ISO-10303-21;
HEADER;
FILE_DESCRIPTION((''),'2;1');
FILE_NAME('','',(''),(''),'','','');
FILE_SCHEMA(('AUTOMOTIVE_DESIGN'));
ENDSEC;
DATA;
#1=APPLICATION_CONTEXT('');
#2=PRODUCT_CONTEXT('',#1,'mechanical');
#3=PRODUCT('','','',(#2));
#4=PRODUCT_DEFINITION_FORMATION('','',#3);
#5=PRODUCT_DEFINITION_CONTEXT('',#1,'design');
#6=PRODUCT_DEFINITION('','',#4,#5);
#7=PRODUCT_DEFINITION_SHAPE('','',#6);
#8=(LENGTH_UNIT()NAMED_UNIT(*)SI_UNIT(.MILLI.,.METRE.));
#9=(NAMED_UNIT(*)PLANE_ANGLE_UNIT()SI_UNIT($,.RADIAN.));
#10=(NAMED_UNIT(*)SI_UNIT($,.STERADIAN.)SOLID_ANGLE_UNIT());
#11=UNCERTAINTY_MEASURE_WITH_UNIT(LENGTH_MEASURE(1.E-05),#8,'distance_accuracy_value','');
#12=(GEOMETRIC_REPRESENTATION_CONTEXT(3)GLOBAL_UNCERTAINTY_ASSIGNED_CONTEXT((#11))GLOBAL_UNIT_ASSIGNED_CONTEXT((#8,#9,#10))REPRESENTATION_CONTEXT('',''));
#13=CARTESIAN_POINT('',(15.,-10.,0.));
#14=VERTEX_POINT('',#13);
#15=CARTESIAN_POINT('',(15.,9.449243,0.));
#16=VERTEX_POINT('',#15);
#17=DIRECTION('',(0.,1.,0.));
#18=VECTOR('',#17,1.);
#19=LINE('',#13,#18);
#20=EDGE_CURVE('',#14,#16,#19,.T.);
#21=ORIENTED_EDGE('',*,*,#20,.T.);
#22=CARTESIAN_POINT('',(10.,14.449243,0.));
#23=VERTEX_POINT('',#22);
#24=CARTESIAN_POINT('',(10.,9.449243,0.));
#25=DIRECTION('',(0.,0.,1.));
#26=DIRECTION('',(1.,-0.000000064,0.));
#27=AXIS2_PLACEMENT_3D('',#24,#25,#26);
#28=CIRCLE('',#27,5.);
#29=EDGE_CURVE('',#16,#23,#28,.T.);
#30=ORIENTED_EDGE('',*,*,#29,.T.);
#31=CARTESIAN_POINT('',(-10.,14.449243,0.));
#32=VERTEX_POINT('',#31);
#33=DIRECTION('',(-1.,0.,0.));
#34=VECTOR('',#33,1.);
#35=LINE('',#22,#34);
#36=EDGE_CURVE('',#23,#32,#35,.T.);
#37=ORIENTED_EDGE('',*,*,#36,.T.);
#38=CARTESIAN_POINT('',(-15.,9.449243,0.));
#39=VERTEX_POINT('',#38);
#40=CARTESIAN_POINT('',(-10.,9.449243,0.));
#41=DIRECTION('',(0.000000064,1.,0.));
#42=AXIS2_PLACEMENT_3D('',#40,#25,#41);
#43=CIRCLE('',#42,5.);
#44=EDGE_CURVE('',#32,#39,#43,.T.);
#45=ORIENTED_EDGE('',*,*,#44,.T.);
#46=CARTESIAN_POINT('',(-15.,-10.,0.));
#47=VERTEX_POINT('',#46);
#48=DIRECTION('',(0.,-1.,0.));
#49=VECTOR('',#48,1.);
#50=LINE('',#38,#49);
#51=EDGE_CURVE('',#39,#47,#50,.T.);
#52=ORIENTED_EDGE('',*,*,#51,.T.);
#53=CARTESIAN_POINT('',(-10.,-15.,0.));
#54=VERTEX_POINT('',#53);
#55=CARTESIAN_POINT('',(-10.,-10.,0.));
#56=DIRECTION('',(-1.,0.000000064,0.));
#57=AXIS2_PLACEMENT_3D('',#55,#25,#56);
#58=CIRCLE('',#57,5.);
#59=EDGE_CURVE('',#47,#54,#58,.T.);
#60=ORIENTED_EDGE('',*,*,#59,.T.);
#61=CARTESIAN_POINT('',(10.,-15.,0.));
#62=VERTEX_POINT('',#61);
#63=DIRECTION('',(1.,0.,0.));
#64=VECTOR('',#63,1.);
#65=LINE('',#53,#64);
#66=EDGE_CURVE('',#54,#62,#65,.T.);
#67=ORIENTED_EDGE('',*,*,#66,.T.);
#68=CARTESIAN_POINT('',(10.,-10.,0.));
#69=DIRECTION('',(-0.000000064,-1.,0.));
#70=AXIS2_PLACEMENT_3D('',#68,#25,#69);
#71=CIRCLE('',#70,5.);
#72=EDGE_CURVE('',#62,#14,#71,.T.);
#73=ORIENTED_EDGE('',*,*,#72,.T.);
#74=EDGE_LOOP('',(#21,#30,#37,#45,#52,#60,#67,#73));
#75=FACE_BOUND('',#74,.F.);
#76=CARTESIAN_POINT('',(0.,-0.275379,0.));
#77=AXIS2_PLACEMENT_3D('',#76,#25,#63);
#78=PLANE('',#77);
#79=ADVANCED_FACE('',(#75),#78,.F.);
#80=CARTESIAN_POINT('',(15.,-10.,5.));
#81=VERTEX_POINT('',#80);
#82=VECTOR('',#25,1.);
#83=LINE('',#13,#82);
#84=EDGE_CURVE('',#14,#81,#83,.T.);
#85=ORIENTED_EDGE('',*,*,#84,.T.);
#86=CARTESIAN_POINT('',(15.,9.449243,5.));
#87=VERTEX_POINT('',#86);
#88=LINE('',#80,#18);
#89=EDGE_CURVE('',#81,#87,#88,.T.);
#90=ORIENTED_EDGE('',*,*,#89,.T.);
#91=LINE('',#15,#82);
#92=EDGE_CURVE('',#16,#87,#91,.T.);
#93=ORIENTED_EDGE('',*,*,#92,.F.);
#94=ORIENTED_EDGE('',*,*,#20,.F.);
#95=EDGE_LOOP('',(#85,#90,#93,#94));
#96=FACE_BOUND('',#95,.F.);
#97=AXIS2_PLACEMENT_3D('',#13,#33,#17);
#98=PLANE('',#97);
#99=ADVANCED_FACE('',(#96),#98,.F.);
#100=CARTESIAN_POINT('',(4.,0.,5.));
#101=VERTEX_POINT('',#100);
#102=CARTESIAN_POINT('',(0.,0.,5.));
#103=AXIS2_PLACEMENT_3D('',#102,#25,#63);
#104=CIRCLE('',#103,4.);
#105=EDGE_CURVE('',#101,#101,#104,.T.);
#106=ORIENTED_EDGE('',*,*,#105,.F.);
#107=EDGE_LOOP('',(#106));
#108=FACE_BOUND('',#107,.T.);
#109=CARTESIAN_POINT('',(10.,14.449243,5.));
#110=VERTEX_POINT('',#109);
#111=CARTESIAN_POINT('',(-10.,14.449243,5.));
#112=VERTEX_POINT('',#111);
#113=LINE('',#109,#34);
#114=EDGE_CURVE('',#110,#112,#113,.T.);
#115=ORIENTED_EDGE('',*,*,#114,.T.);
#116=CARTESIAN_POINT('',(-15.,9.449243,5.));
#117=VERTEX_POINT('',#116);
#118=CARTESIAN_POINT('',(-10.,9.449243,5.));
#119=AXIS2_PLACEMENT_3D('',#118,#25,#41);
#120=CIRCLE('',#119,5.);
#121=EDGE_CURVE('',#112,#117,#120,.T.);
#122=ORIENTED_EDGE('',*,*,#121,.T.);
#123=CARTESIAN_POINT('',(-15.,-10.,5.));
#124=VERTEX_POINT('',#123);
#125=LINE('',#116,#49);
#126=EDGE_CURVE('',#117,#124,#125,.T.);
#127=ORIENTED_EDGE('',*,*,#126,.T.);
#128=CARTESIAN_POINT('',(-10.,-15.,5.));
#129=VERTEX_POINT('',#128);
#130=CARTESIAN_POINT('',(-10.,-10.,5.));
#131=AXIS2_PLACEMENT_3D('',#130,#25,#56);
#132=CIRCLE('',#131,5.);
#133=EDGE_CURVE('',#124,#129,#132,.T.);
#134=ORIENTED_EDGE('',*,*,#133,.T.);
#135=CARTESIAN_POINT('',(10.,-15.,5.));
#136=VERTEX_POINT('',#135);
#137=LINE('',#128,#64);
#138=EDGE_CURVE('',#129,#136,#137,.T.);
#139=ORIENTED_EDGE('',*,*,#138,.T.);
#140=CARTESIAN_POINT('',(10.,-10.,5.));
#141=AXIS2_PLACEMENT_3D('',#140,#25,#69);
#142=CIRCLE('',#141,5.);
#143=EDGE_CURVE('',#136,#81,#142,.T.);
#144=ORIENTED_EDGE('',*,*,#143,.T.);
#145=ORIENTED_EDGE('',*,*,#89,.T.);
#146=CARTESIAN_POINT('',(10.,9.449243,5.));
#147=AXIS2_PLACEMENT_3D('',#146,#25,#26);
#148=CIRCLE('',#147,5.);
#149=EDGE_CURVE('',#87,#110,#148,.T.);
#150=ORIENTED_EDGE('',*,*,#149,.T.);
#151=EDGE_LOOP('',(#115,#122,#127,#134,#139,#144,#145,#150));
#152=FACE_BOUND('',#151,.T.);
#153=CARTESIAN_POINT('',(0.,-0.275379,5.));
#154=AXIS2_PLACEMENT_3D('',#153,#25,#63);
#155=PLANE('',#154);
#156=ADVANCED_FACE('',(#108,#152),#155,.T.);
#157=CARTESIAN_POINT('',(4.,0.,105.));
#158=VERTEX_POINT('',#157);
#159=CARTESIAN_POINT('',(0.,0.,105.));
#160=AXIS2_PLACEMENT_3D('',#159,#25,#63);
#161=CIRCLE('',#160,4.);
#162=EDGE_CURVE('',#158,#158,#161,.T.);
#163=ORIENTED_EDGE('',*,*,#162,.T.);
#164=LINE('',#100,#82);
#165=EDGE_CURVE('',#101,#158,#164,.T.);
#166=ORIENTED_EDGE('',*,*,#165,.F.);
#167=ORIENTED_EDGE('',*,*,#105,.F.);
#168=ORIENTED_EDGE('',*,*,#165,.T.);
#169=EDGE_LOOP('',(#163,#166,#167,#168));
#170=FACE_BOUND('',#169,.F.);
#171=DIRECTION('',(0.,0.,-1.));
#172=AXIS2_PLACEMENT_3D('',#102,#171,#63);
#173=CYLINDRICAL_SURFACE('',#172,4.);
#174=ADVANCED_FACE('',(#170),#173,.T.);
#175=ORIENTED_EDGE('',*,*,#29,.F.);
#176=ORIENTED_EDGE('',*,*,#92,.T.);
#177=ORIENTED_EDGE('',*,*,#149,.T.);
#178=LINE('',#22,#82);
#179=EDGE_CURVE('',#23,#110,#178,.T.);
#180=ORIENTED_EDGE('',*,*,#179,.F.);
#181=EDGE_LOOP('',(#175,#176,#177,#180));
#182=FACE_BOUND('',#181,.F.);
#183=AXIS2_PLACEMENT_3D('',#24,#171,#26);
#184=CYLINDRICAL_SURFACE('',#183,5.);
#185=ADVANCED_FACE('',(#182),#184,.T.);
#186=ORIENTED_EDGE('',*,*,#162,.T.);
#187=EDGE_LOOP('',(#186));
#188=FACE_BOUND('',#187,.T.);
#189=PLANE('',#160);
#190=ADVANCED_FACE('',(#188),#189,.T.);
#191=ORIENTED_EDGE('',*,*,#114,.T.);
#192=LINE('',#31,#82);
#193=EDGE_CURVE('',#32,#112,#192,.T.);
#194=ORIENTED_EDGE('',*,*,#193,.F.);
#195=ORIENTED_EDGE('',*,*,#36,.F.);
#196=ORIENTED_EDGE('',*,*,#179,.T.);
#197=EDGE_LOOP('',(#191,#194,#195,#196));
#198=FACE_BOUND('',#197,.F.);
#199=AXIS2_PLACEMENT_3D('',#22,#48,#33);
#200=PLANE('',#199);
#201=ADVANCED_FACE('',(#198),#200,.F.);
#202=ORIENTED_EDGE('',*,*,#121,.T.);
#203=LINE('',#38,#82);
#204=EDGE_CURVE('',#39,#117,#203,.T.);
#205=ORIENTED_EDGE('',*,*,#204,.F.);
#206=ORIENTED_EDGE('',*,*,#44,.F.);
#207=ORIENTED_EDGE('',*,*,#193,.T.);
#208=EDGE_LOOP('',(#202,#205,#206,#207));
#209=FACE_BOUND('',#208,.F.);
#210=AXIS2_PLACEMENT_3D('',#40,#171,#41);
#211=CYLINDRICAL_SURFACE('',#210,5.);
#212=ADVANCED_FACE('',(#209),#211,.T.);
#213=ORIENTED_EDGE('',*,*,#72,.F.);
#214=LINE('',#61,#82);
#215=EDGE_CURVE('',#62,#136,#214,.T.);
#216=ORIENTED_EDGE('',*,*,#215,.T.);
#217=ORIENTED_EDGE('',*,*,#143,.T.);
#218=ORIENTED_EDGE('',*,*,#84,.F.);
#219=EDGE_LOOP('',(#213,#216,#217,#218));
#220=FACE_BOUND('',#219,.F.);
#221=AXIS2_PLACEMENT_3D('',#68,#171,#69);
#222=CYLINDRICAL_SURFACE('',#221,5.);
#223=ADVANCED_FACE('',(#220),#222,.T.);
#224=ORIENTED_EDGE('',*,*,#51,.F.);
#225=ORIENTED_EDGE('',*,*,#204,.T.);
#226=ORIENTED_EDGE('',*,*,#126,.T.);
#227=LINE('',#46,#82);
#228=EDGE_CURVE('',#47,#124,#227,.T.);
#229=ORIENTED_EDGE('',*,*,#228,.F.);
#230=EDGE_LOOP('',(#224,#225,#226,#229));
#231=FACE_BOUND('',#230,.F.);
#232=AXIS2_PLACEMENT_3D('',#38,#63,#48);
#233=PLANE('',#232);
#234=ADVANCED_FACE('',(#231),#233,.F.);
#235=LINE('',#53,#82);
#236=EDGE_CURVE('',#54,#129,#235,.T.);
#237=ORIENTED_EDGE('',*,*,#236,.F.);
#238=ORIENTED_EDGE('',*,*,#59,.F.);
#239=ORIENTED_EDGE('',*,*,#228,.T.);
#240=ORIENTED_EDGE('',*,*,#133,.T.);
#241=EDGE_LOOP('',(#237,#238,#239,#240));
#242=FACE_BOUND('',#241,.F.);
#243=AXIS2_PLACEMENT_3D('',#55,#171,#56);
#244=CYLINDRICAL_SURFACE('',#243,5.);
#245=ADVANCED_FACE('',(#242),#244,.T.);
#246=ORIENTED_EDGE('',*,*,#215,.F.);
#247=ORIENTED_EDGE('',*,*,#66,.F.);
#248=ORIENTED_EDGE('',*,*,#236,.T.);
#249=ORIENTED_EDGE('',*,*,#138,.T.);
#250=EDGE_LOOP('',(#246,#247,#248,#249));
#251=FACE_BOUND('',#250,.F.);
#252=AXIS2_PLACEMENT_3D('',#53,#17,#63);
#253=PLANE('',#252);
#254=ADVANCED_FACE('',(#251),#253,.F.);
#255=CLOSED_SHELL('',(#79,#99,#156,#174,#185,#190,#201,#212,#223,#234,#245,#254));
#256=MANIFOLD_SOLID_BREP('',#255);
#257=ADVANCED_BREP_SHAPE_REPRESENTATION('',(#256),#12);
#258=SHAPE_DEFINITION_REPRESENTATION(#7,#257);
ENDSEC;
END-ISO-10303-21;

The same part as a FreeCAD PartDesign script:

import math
import FreeCAD as App
import Part
import Sketcher

V = App.Vector

doc = App.newDocument("Part")
params = doc.addObject("Spreadsheet::Sheet", "Params")
for row, (alias, value) in enumerate([
    ("sketch1_radius", "5 mm"),
    ("sketch1_width", "20 mm"),
    ("pad1_length", "5 mm"),
    ("sketch2_diameter", "8 mm"),
    ("pad2_length", "100 mm"),
], start=1):
    params.set(f"A{row}", alias)
    params.set(f"B{row}", "=" + value)
    params.setAlias(f"B{row}", alias)

body = doc.addObject("PartDesign::Body", "Body")

# Sketch on XY plane
sketch1 = body.newObject("Sketcher::SketchObject", "Sketch")
sketch1.AttachmentSupport = (doc.getObject("XY_Plane"), [""])
sketch1.MapMode = "FlatFace"
sketch1.addGeometry([
    Part.LineSegment(V(10, 14.449243, 0), V(-10, 14.449243, 0)),  # 0
    Part.ArcOfCircle(Part.Circle(V(-10, 9.449243, 0), V(0, 0, 1), 5), math.radians(89.999996), math.radians(180.000004)),  # 1
    Part.LineSegment(V(-15, 9.449243, 0), V(-15, -10, 0)),  # 2
    Part.ArcOfCircle(Part.Circle(V(-10, -10, 0), V(0, 0, 1), 5), math.radians(179.999996), math.radians(270.000004)),  # 3
    Part.LineSegment(V(-10, -15, 0), V(10, -15, 0)),  # 4
    Part.ArcOfCircle(Part.Circle(V(10, -10, 0), V(0, 0, 1), 5), math.radians(-90.000004), math.radians(0.000004)),  # 5
    Part.LineSegment(V(15, -10, 0), V(15, 9.449243, 0)),  # 6
    Part.ArcOfCircle(Part.Circle(V(10, 9.449243, 0), V(0, 0, 1), 5), math.radians(-0.000004), math.radians(90.000004)),  # 7
], False)
sketch1.addConstraint([
    Sketcher.Constraint("Tangent", 0, 2, 1, 1),
    Sketcher.Constraint("Tangent", 1, 2, 2, 1),
    Sketcher.Constraint("Tangent", 2, 2, 3, 1),
    Sketcher.Constraint("Tangent", 3, 2, 4, 1),
    Sketcher.Constraint("Tangent", 4, 2, 5, 1),
    Sketcher.Constraint("Tangent", 5, 2, 6, 1),
    Sketcher.Constraint("Tangent", 6, 2, 7, 1),
    Sketcher.Constraint("Tangent", 7, 2, 0, 1),
    Sketcher.Constraint("Horizontal", 0),
    Sketcher.Constraint("Vertical", 2),
    Sketcher.Constraint("Horizontal", 4),
    Sketcher.Constraint("Vertical", 6),
    Sketcher.Constraint("Equal", 1, 3),
    Sketcher.Constraint("Equal", 3, 5),
    Sketcher.Constraint("Equal", 5, 7),
    Sketcher.Constraint("Radius", 1, 5.0),
    Sketcher.Constraint("DistanceX", 0, 2, 0, 1, 20.0),
    Sketcher.Constraint("DistanceX", 1, 3, -1, 1, 10.0),
    Sketcher.Constraint("DistanceY", 3, 3, -1, 1, 10.0),
    Sketcher.Constraint("DistanceY", 2, 2, 2, 1, 19.449243),
])
sketch1.setExpression("Constraints[15]", "Params.sketch1_radius")
sketch1.setExpression("Constraints[16]", "Params.sketch1_width")
pad1 = body.newObject("PartDesign::Pad", "Pad")
pad1.Profile = sketch1
pad1.setExpression("Length", "Params.pad1_length")

# Sketch on XY plane
sketch2 = body.newObject("Sketcher::SketchObject", "Sketch001")
sketch2.AttachmentSupport = (doc.getObject("XY_Plane"), [""])
sketch2.MapMode = "FlatFace"
sketch2.AttachmentOffset = App.Placement(V(0, 0, 5), App.Rotation())
sketch2.addGeometry(Part.Circle(V(0, 0, 0), V(0, 0, 1), 4), False)
sketch2.addConstraint([
    Sketcher.Constraint("Coincident", 0, 3, -1, 1),
    Sketcher.Constraint("Diameter", 0, 8.0),
])
sketch2.setExpression("Constraints[1]", "Params.sketch2_diameter")
pad2 = body.newObject("PartDesign::Pad", "Pad001")
pad2.Profile = sketch2
pad2.setExpression("Length", "Params.pad2_length")

doc.recompute()
